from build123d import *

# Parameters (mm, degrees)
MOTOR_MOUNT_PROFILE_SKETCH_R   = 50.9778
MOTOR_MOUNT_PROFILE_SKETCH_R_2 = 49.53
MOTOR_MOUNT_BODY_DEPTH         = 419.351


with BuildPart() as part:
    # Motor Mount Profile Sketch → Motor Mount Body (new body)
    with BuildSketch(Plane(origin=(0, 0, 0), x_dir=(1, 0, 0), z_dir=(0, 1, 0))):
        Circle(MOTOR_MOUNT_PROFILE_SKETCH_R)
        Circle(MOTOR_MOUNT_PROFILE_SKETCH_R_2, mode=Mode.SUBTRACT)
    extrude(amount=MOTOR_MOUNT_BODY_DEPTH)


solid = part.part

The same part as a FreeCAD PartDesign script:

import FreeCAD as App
import Part
import Sketcher
from FreeCAD import Vector
Q = App.Units.Quantity

doc = App.newDocument("Part")
body = doc.addObject("PartDesign::Body", "Body")

sketch1 = body.newObject("Sketcher::SketchObject", "Sketch")
sketch1.AttachmentSupport = (doc.getObject("XZ_Plane"), [""])
sketch1.MapMode = "FlatFace"
sketch1.addGeometry(Part.Circle(Vector(0, 0, 0), Vector(0, 0, 1), 51), False)
sketch1.addGeometry(Part.Circle(Vector(0, 0, 0), Vector(0, 0, 1), 50), False)
sketch1.addConstraint(Sketcher.Constraint("Coincident", 0, 3, -1, 1))
sketch1.addConstraint(Sketcher.Constraint("Coincident", 1, 3, -1, 1))
sketch1.addConstraint(Sketcher.Constraint("Diameter", 1, Q("3.9 in")))
sketch1.addConstraint(Sketcher.Constraint("Diameter", 0, Q("4.014 in")))
pad1 = body.newObject("PartDesign::Pad", "Pad")
pad1.Profile = sketch1
pad1.Length = 419.351
pad1.Reversed = True

doc.recompute()
